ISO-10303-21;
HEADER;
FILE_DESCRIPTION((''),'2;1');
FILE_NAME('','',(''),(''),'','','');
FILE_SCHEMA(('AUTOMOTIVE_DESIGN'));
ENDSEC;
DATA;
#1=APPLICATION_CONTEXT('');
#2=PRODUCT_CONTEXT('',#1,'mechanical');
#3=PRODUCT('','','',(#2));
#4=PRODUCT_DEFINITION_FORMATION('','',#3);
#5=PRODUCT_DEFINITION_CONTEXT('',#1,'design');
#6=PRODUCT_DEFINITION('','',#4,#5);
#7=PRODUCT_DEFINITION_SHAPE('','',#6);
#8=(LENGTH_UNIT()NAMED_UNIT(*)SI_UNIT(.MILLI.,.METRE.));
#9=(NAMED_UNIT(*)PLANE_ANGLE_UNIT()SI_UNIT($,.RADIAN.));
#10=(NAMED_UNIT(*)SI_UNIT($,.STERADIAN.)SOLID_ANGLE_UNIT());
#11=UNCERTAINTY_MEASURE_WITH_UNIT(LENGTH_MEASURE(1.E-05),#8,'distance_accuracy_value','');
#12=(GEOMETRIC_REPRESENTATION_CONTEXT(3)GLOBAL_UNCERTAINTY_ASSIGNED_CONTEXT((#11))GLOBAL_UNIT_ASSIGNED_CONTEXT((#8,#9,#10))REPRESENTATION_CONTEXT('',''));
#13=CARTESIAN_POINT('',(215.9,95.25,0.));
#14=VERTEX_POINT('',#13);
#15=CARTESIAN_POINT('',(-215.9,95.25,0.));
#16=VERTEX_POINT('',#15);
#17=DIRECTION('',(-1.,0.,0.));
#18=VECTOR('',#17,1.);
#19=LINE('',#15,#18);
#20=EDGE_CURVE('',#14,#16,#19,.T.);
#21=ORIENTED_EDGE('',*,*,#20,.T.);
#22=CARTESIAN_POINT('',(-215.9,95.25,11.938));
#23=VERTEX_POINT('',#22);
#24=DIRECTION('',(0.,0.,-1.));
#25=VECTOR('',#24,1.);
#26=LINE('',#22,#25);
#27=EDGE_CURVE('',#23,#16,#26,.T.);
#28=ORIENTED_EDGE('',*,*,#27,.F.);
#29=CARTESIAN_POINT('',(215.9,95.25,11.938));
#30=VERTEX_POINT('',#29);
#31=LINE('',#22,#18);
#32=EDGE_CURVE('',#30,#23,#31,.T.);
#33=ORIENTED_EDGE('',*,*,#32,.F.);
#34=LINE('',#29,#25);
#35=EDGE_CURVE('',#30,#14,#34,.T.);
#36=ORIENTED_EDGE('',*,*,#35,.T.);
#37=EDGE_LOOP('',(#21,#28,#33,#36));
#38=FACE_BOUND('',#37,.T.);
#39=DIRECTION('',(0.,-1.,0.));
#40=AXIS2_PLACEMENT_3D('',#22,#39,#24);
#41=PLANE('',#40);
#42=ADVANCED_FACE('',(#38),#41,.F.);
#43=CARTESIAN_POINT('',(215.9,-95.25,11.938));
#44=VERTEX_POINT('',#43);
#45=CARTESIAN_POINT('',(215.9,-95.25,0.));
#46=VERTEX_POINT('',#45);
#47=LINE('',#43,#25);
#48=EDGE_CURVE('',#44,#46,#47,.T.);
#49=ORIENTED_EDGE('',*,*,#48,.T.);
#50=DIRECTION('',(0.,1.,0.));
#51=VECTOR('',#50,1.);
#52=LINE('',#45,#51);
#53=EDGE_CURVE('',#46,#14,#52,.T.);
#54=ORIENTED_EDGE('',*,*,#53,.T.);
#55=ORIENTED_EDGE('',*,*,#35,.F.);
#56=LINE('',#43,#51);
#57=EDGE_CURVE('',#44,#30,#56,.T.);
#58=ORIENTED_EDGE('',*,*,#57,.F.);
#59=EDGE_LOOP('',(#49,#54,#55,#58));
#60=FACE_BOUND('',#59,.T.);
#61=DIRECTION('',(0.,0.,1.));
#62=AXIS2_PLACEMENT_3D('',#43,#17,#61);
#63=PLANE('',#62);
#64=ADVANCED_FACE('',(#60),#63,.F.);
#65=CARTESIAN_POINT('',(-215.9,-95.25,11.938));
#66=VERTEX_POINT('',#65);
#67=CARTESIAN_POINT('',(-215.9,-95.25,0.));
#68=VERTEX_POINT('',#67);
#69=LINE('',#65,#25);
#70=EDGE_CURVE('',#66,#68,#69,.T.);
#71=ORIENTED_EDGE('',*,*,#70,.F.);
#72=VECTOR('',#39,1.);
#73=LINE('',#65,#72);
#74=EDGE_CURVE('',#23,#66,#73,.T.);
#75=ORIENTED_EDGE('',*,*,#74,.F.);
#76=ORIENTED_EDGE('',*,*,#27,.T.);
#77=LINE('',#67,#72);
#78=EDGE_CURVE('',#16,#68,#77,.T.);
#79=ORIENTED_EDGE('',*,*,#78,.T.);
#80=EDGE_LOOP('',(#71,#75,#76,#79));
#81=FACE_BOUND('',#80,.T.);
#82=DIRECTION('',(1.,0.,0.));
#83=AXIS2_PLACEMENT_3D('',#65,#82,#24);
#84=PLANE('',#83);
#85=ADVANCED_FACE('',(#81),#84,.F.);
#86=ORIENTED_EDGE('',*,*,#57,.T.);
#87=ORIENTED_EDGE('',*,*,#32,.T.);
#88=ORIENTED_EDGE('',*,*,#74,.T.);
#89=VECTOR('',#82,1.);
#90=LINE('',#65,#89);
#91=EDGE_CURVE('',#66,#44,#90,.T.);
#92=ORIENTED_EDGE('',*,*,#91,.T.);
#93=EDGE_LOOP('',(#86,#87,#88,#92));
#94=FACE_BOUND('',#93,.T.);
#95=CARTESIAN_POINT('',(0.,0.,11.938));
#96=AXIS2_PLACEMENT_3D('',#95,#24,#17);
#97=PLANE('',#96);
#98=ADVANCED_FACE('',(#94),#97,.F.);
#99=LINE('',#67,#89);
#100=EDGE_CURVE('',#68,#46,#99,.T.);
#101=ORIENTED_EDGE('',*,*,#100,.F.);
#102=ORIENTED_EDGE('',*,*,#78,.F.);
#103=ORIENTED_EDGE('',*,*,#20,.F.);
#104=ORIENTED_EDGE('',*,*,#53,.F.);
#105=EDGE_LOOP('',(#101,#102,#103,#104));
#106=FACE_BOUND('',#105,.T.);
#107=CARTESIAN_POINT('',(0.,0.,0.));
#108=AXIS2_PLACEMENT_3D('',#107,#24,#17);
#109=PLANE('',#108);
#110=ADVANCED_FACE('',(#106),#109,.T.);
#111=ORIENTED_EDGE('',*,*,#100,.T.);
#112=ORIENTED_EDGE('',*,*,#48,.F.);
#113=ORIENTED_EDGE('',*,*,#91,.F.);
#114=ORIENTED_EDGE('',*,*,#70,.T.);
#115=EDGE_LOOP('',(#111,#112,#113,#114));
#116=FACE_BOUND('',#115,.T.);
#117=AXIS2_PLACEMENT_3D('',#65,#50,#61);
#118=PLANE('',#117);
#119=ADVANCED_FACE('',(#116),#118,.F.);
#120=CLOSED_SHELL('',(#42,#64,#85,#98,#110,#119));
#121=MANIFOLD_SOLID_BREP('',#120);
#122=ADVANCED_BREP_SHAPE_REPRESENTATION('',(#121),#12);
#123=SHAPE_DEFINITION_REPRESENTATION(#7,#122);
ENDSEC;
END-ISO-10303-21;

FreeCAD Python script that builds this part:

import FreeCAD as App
import Part
import Sketcher

V = App.Vector
Q = App.Units.Quantity

doc = App.newDocument("Part")
body = doc.addObject("PartDesign::Body", "Body")

# Sketch on XY plane
sketch1 = body.newObject("Sketcher::SketchObject", "Sketch")
sketch1.AttachmentSupport = (doc.getObject("XY_Plane"), [""])
sketch1.MapMode = "FlatFace"
sketch1.addGeometry([
    Part.LineSegment(V(-216, 95, 0), V(-216, -95, 0)),
    Part.LineSegment(V(-216, -95, 0), V(216, -95, 0)),
    Part.LineSegment(V(216, -95, 0), V(216, 95, 0)),
    Part.LineSegment(V(216, 95, 0), V(-216, 95, 0)),
], False)
sketch1.addConstraint([
    Sketcher.Constraint("Coincident", 0, 2, 1, 1),
    Sketcher.Constraint("Coincident", 1, 2, 2, 1),
    Sketcher.Constraint("Coincident", 2, 2, 3, 1),
    Sketcher.Constraint("Coincident", 3, 2, 0, 1),
    Sketcher.Constraint("Vertical", 0),
    Sketcher.Constraint("Horizontal", 1),
    Sketcher.Constraint("Vertical", 2),
    Sketcher.Constraint("Horizontal", 3),
    Sketcher.Constraint("Symmetric", 0, 2, 2, 2, -1, 1),
    Sketcher.Constraint("DistanceX", 1, 1, 1, 2, Q("17 in")),
    Sketcher.Constraint("DistanceY", 0, 2, 0, 1, Q("7.5 in")),
])
pad1 = body.newObject("PartDesign::Pad", "Pad")
pad1.Profile = sketch1
pad1.Length = Q("0.47 in")

doc.recompute()
